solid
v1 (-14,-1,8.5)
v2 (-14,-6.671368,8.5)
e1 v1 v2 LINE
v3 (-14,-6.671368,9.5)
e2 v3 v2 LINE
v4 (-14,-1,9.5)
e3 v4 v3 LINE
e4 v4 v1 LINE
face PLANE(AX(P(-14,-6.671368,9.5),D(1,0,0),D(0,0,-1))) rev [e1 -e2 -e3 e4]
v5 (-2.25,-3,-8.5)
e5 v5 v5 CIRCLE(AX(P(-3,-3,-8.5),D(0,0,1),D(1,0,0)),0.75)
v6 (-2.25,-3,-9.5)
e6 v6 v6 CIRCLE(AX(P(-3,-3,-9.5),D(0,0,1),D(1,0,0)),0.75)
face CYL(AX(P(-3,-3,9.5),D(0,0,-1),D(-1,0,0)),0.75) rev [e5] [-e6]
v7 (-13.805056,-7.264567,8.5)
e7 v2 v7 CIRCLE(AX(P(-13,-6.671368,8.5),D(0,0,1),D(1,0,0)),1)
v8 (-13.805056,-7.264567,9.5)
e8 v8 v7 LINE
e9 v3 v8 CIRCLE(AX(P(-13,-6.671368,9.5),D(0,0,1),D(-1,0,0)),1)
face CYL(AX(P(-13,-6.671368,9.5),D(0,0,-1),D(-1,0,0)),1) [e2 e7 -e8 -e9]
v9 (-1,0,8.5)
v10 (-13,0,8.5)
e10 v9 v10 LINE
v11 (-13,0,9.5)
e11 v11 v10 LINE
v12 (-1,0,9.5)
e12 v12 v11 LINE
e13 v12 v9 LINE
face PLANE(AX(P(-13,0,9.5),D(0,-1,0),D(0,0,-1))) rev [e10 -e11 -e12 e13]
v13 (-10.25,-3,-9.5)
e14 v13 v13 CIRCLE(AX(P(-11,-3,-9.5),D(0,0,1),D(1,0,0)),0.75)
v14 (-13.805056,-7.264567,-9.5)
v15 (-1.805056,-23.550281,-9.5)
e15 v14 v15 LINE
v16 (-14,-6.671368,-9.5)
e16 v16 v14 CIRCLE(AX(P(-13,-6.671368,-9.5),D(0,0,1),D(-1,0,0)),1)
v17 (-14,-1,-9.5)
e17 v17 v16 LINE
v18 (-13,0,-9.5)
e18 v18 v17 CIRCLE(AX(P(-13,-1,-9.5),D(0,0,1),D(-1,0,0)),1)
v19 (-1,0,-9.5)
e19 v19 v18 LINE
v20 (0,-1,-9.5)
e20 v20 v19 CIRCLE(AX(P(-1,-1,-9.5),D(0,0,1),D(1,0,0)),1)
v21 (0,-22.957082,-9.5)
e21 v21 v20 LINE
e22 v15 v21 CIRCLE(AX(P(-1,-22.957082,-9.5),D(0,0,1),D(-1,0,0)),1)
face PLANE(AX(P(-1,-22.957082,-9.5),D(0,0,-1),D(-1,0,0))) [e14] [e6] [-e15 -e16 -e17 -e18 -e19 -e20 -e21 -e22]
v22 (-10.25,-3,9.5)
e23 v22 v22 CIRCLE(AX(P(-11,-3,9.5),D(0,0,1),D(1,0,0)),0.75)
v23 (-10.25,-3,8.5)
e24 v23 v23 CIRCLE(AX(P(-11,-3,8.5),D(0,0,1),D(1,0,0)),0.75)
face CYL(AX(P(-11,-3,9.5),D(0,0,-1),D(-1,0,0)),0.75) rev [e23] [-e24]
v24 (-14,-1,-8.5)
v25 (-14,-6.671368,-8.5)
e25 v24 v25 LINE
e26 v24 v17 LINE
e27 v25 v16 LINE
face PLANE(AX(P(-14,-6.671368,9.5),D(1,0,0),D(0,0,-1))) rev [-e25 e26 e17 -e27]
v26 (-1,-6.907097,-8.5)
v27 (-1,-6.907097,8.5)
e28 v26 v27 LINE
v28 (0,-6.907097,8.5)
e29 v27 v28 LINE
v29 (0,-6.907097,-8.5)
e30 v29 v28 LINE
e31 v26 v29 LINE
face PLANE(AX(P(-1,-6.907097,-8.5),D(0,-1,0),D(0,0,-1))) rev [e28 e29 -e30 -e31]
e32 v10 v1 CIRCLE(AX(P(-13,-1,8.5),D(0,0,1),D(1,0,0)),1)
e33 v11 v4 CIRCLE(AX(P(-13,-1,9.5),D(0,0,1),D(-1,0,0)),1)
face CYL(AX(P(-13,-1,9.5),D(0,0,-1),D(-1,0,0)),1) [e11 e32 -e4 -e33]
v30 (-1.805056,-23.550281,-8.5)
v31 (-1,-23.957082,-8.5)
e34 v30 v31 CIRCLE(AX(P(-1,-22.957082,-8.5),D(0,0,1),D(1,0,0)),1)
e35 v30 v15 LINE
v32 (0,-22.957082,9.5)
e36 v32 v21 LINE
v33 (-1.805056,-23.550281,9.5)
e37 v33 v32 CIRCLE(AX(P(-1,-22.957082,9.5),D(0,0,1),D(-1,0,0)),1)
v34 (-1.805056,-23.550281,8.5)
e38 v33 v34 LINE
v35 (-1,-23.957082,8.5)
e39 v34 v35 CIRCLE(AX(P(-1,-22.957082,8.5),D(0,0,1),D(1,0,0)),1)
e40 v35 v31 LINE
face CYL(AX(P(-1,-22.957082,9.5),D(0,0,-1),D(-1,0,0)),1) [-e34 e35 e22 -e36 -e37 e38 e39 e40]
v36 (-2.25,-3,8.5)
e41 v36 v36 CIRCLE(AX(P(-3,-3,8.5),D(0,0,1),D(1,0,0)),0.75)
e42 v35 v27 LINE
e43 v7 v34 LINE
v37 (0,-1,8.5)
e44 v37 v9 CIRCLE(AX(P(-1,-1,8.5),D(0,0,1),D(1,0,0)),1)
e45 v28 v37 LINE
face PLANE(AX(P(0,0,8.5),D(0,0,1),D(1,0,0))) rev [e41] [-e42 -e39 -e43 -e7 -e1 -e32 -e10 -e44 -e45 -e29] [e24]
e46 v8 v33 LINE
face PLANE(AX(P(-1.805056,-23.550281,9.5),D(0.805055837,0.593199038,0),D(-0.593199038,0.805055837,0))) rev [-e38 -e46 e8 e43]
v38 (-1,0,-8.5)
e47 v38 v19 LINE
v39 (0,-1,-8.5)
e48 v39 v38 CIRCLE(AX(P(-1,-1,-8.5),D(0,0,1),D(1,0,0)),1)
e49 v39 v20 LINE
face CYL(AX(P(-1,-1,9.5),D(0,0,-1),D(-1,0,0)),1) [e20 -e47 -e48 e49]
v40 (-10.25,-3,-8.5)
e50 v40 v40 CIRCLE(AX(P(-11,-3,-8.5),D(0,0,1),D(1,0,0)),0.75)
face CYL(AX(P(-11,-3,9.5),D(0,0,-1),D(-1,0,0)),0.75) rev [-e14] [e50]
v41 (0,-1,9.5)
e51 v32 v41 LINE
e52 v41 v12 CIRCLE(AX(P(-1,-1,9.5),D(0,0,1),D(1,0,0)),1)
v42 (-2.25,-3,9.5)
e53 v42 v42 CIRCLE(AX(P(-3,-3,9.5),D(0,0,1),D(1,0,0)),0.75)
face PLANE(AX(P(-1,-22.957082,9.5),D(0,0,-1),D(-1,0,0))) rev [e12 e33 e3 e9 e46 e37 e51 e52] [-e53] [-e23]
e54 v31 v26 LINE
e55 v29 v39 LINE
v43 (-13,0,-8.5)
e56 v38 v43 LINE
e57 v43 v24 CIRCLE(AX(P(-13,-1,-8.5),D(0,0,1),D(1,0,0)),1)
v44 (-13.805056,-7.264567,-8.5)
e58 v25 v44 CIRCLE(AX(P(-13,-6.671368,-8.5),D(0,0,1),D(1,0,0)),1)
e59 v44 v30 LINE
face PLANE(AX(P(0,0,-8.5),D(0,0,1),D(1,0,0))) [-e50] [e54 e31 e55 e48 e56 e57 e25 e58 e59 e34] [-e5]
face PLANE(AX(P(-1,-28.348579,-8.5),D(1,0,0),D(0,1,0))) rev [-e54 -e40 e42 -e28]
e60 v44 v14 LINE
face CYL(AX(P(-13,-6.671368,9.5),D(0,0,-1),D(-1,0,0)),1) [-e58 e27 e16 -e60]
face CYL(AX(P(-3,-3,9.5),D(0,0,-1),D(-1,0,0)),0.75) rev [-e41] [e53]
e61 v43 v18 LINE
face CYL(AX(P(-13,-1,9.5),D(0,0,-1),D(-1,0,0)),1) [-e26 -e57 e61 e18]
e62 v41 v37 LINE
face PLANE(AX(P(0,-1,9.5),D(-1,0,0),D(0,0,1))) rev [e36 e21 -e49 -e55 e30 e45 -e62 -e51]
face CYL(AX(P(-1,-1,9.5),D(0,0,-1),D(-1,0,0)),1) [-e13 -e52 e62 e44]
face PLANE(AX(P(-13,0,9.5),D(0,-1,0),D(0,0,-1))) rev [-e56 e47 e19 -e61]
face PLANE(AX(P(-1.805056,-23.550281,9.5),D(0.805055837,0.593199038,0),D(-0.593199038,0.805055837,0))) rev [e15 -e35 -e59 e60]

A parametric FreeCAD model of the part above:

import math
import FreeCAD as App
import Part
import Sketcher

V = App.Vector


def add_polygon(sketch, points):
    """Adds a closed chain of lines whose ends are joined by coincident constraints."""
    first, n = sketch.GeometryCount, len(points)
    for a, b in zip(points, points[1:] + points[:1]):
        sketch.addGeometry(Part.LineSegment(App.Vector(*a, 0), App.Vector(*b, 0)), False)
    for i in range(n):
        sketch.addConstraint(Sketcher.Constraint("Coincident", first + i, 2, first + (i + 1) % n, 1))

doc = App.newDocument("Part")
body = doc.addObject("PartDesign::Body", "Body")

# Sketch on XY plane
sketch1 = doc.addObject("Sketcher::SketchObject", "Sketch")
body.addObject(sketch1)
sketch1.AttachmentSupport = (doc.XY_Plane, [""])
sketch1.MapMode = "FlatFace"
sketch1.addGeometry([
    Part.LineSegment(V(0, -23, 0), V(0, -1, 0)),  # 0
    Part.ArcOfCircle(Part.Circle(V(-1, -1, 0), V(0, 0, 1), 1), math.radians(0), math.radians(90)),  # 1
    Part.LineSegment(V(-1, 0, 0), V(-13, 0, 0)),  # 2
    Part.ArcOfCircle(Part.Circle(V(-13, -1, 0), V(0, 0, 1), 1), math.radians(90), math.radians(180)),  # 3
    Part.LineSegment(V(-14, -1, 0), V(-14, -6.7, 0)),  # 4
    Part.ArcOfCircle(Part.Circle(V(-13, -6.7, 0), V(0, 0, 1), 1), math.radians(180), math.radians(216)),  # 5
    Part.LineSegment(V(-13.8, -7.3, 0), V(-1.8, -23.6, 0)),  # 6
    Part.ArcOfCircle(Part.Circle(V(-1, -23, 0), V(0, 0, 1), 1), math.radians(-144), math.radians(0)),  # 7
    Part.Circle(V(-3, -3, 0), V(0, 0, 1), 0.8),  # 8
    Part.Circle(V(-11, -3, 0), V(0, 0, 1), 0.8),  # 9
], False)
sketch1.addConstraint([
    Sketcher.Constraint("Tangent", 0, 2, 1, 1),
    Sketcher.Constraint("Tangent", 1, 2, 2, 1),
    Sketcher.Constraint("Tangent", 2, 2, 3, 1),
    Sketcher.Constraint("Tangent", 3, 2, 4, 1),
    Sketcher.Constraint("Tangent", 4, 2, 5, 1),
    Sketcher.Constraint("Tangent", 5, 2, 6, 1),
    Sketcher.Constraint("Tangent", 6, 2, 7, 1),
    Sketcher.Constraint("Tangent", 7, 2, 0, 1),
    Sketcher.Constraint("Vertical", 0),
    Sketcher.Constraint("Horizontal", 2),
    Sketcher.Constraint("Vertical", 4),
    Sketcher.Constraint("Equal", 1, 3),
    Sketcher.Constraint("Equal", 3, 5),
    Sketcher.Constraint("Equal", 5, 7),
    Sketcher.Constraint("Equal", 8, 9),
    Sketcher.Constraint("PointOnObject", 0, 2, -2),
    Sketcher.Constraint("PointOnObject", 1, 2, -1),
    Sketcher.Constraint("Horizontal", 8, 3, 9, 3),
    Sketcher.Constraint("Radius", 1, 1.0),
    Sketcher.Constraint("Diameter", 8, 1.5),
    Sketcher.Constraint("DistanceX", 2, 2, 2, 1, 12.0),
    Sketcher.Constraint("DistanceX", 8, 3, -1, 1, 3.0),
    Sketcher.Constraint("DistanceY", 8, 3, -1, 1, 3.0),
    Sketcher.Constraint("DistanceX", 9, 3, -1, 1, 11.0),
    Sketcher.Constraint("DistanceY", 4, 2, 4, 1, 5.671368),
    Sketcher.Constraint("DistanceY", 5, 2, 4, 2, 0.593199),
])
pad1 = doc.addObject("PartDesign::Pad", "Pad")
body.addObject(pad1)
pad1.Profile = sketch1
pad1.Length = 19
pad1.Midplane = True

# Sketch on XY plane
sketch2 = doc.addObject("Sketcher::SketchObject", "Sketch001")
body.addObject(sketch2)
sketch2.AttachmentSupport = (doc.XY_Plane, [""])
sketch2.MapMode = "FlatFace"
add_polygon(sketch2, [(-1, -28), (-1, -7), (8, -7), (7, 5), (-22, 7), (-20, -23)])  # lines 0-5
sketch2.addConstraint([
    Sketcher.Constraint("Vertical", 0),
    Sketcher.Constraint("Horizontal", 1),
    Sketcher.Constraint("Parallel", 2, 4),
    Sketcher.Constraint("DistanceX", 0, 2, -1, 1, 1.0),
    Sketcher.Constraint("DistanceX", 1, 1, 1, 2, 8.926419),
    Sketcher.Constraint("DistanceY", 0, 1, 0, 2, 21.441482),
    Sketcher.Constraint("DistanceY", -1, 1, 2, 2, 4.746992),
    Sketcher.Constraint("DistanceX", 3, 2, -1, 1, 21.667349),
    Sketcher.Constraint("DistanceY", 4, 2, -1, 1, 23.258769),
    Sketcher.Constraint("DistanceY", 5, 2, -1, 1, 28.348579),
    Sketcher.Constraint("DistanceX", 4, 2, 2, 2, 27.329611),
    Sketcher.Constraint("Distance", 3, 29.040055),
])
pocket1 = doc.addObject("PartDesign::Pocket", "Pocket")
body.addObject(pocket1)
pocket1.Profile = sketch2
pocket1.Length = 17
pocket1.Midplane = True

doc.recompute()
